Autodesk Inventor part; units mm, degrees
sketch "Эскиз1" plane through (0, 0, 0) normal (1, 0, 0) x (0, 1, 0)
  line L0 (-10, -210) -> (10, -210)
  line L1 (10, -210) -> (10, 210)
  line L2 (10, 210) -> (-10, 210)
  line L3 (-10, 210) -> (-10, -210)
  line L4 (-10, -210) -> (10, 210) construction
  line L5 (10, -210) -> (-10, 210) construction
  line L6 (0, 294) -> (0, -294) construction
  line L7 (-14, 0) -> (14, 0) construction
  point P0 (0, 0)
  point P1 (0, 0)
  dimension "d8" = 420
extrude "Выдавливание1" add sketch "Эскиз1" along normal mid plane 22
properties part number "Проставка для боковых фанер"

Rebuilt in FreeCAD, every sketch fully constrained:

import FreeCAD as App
import Part
import Sketcher

V = App.Vector

doc = App.newDocument("Part")
body = doc.addObject("PartDesign::Body", "Body")

# Sketch on YZ plane
sketch1 = doc.addObject("Sketcher::SketchObject", "Sketch")
body.addObject(sketch1)
sketch1.AttachmentSupport = (doc.YZ_Plane, [""])
sketch1.MapMode = "FlatFace"
sketch1.addGeometry(Part.LineSegment(V(-10, 210, 0), V(-10, -210, 0)), False)
sketch1.addGeometry(Part.LineSegment(V(-10, -210, 0), V(10, -210, 0)), False)
sketch1.addGeometry(Part.LineSegment(V(10, -210, 0), V(10, 210, 0)), False)
sketch1.addGeometry(Part.LineSegment(V(10, 210, 0), V(-10, 210, 0)), False)
sketch1.addConstraint(Sketcher.Constraint("Coincident", 0, 2, 1, 1))
sketch1.addConstraint(Sketcher.Constraint("Coincident", 1, 2, 2, 1))
sketch1.addConstraint(Sketcher.Constraint("Coincident", 2, 2, 3, 1))
sketch1.addConstraint(Sketcher.Constraint("Coincident", 3, 2, 0, 1))
sketch1.addConstraint(Sketcher.Constraint("Vertical", 0))
sketch1.addConstraint(Sketcher.Constraint("Horizontal", 1))
sketch1.addConstraint(Sketcher.Constraint("Vertical", 2))
sketch1.addConstraint(Sketcher.Constraint("Horizontal", 3))
sketch1.addConstraint(Sketcher.Constraint("Symmetric", 0, 2, 2, 2, -1, 1))
sketch1.addConstraint(Sketcher.Constraint("DistanceY", 0, 2, 0, 1, 420.0))
sketch1.addConstraint(Sketcher.Constraint("DistanceX", 1, 1, 1, 2, 20.0))
pad1 = doc.addObject("PartDesign::Pad", "Pad")
body.addObject(pad1)
pad1.Profile = sketch1
pad1.Length = 22
pad1.Midplane = True

doc.recompute()
